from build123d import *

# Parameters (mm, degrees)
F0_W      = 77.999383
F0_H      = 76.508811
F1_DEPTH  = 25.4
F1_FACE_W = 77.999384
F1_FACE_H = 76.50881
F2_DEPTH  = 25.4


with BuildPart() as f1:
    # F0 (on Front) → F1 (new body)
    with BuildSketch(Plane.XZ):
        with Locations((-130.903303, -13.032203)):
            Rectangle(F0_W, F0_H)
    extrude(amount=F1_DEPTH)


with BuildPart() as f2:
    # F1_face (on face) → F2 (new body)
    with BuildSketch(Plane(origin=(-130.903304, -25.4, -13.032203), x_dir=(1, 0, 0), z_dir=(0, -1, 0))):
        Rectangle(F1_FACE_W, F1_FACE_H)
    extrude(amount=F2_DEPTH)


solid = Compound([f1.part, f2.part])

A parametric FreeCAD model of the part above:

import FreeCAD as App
import Part
import Sketcher
from FreeCAD import Vector
Q = App.Units.Quantity


def add_polygon(sketch, points):
    """Adds a closed chain of lines whose ends are joined by coincident constraints."""
    first, n = sketch.GeometryCount, len(points)
    for a, b in zip(points, points[1:] + points[:1]):
        sketch.addGeometry(Part.LineSegment(App.Vector(*a, 0), App.Vector(*b, 0)), False)
    for i in range(n):
        sketch.addConstraint(Sketcher.Constraint("Coincident", first + i, 2, first + (i + 1) % n, 1))

doc = App.newDocument("Part")
body = doc.addObject("PartDesign::Body", "Body")

sketch1 = body.newObject("Sketcher::SketchObject", "Sketch")
sketch1.AttachmentSupport = (doc.getObject("XZ_Plane"), [""])
sketch1.MapMode = "FlatFace"
add_polygon(sketch1, [(-170, 25), (-170, -51), (-92, -51), (-92, 25)])
sketch1.addConstraint([
    Sketcher.Constraint("Vertical", 0),
    Sketcher.Constraint("Horizontal", 1),
    Sketcher.Constraint("Vertical", 2),
    Sketcher.Constraint("Horizontal", 3),
    Sketcher.Constraint("DistanceY", -1, 1, 2, 2, Q("0.9930001 in")),
    Sketcher.Constraint("DistanceY", 0, 2, 0, 1, 76.508811),
    Sketcher.Constraint("DistanceX", 1, 1, 1, 2, 77.999383),
    Sketcher.Constraint("DistanceX", 1, 2, -1, 1, 91.903611),
])
pad1 = body.newObject("PartDesign::Pad", "Pad")
pad1.Profile = sketch1
pad1.Length = Q("1 in")
body2 = doc.addObject("PartDesign::Body", "Body001")

sketch2 = body2.newObject("Sketcher::SketchObject", "Sketch001")
sketch2.AttachmentSupport = (doc.getObject("XZ_Plane001"), [""])
sketch2.MapMode = "FlatFace"
sketch2.AttachmentOffset = App.Placement(Vector(0, 0, 1 * 25.4), App.Rotation())
add_polygon(sketch2, [(-170, 25), (-170, -51), (-92, -51), (-92, 25)])
sketch2.addConstraint([
    Sketcher.Constraint("Vertical", 0),
    Sketcher.Constraint("Horizontal", 1),
    Sketcher.Constraint("Vertical", 2),
    Sketcher.Constraint("Horizontal", 3),
    Sketcher.Constraint("DistanceY", -1, 1, 2, 2, Q("0.9930001 in")),
    Sketcher.Constraint("DistanceY", 0, 2, 0, 1, 76.50881),
    Sketcher.Constraint("DistanceX", 1, 1, 1, 2, 77.999384),
    Sketcher.Constraint("DistanceX", 1, 2, -1, 1, 91.903612),
])
pad2 = body2.newObject("PartDesign::Pad", "Pad001")
pad2.Profile = sketch2
pad2.Length = Q("1 in")

doc.recompute()
